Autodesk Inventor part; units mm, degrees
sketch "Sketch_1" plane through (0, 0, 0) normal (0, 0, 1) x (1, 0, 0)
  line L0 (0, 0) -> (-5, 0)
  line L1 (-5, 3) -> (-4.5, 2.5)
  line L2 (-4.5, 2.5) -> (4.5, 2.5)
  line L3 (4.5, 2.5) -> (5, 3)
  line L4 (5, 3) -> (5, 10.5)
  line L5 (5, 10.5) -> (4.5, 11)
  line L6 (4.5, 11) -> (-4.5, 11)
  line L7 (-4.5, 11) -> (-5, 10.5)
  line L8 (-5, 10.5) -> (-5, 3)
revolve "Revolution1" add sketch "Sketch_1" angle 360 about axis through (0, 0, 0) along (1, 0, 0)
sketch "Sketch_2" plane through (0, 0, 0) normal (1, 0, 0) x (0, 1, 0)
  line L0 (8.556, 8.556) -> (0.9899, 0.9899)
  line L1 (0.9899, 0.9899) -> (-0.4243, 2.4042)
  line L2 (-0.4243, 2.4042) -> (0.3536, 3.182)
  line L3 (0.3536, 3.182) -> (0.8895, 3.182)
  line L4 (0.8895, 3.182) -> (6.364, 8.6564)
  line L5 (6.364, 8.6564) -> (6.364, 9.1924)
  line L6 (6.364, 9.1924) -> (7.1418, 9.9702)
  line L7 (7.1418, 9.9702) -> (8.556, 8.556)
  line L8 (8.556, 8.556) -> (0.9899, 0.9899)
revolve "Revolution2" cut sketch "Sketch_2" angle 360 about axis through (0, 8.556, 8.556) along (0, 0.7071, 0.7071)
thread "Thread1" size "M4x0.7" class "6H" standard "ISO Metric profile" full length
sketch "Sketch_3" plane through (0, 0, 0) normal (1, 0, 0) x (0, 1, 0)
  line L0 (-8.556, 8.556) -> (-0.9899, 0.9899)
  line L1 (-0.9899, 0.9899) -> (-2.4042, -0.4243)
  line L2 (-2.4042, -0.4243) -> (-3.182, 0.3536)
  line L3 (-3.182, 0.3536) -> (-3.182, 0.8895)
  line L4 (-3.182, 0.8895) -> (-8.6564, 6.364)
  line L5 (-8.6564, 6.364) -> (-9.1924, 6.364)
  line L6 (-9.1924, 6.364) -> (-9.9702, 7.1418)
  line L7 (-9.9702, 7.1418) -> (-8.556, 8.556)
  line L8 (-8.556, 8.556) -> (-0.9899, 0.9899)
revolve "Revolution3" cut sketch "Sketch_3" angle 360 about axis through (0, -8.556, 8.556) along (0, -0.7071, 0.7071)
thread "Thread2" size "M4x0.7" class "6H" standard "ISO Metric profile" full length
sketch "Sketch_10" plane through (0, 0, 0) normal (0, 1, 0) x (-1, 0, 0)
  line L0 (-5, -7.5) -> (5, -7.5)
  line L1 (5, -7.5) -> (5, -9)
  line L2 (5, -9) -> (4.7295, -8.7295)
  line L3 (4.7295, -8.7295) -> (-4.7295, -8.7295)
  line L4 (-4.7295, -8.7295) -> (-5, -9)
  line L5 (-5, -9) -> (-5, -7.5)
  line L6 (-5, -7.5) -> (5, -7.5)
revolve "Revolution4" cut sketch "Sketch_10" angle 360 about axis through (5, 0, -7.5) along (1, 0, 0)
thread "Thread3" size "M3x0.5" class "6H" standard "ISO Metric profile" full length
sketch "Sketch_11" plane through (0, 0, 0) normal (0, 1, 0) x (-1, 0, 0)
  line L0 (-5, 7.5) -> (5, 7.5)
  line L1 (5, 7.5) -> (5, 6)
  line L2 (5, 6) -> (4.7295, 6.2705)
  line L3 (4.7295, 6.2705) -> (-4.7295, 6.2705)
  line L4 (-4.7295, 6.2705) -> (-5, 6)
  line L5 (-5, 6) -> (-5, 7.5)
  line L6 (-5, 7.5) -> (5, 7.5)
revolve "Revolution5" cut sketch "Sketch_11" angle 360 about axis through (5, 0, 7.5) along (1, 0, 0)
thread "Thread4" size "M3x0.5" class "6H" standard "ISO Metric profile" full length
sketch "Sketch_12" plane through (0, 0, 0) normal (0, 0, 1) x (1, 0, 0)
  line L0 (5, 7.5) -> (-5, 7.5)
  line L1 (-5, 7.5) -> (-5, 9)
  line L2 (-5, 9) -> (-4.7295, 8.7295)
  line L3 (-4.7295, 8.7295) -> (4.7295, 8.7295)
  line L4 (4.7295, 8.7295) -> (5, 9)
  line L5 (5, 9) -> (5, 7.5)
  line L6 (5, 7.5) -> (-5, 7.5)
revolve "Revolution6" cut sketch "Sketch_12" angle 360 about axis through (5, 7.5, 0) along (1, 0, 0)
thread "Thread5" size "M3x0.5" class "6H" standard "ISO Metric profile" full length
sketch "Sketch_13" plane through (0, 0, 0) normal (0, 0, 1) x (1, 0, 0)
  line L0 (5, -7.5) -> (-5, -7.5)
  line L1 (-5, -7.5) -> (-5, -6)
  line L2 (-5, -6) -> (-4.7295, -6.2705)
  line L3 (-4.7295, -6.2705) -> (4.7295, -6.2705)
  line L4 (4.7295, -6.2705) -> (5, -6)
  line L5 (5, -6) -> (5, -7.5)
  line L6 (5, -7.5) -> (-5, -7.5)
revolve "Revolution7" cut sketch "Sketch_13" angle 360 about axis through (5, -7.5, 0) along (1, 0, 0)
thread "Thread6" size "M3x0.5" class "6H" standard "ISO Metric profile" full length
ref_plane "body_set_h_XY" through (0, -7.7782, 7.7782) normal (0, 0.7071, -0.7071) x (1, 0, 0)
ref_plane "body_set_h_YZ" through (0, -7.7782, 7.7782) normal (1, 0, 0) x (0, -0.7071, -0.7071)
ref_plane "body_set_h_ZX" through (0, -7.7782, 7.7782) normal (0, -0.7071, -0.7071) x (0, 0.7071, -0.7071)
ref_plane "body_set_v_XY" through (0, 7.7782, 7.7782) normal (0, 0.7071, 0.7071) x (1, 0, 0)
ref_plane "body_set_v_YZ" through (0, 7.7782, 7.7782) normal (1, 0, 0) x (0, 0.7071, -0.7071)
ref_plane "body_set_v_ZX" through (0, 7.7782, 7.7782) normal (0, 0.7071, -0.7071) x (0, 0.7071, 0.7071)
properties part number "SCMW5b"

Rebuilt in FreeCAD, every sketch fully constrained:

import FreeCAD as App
import Part
import Sketcher

V = App.Vector

doc = App.newDocument("Part")
params = doc.addObject("Spreadsheet::Sheet", "Params")
for row, (alias, value) in enumerate([
    ("sketch1_width", "9 mm"),
    ("sketch1_height", "7.5 mm"),
    ("revolution_angle", "360 deg"),
    ("sketch2_length", "2 mm"),
    ("sketch2_length2", "10.7 mm"),
    ("sketch2_length3", "1.1 mm"),
    ("groove_angle", "360 deg"),
    ("sketch3_length", "2 mm"),
    ("sketch3_length2", "10.7 mm"),
    ("sketch3_length3", "1.1 mm"),
    ("groove2_angle", "360 deg"),
    ("sketch4_width", "10 mm"),
    ("sketch4_height", "1.5 mm"),
    ("groove3_angle", "360 deg"),
    ("sketch5_width", "10 mm"),
    ("sketch5_height", "1.5 mm"),
    ("groove4_angle", "360 deg"),
    ("sketch6_width", "10 mm"),
    ("sketch6_height", "1.5 mm"),
    ("groove5_angle", "360 deg"),
    ("sketch7_width", "10 mm"),
    ("sketch7_height", "1.5 mm"),
    ("groove6_angle", "360 deg"),
], start=1):
    params.set(f"A{row}", alias)
    params.set(f"B{row}", "=" + value)
    params.setAlias(f"B{row}", alias)

body = doc.addObject("PartDesign::Body", "Body")

# Sketch on XY plane
sketch1 = body.newObject("Sketcher::SketchObject", "Sketch")
sketch1.AttachmentSupport = (doc.getObject("XY_Plane"), [""])
sketch1.MapMode = "FlatFace"
sketch1.addGeometry([
    Part.LineSegment(V(-5, 10.5, 0), V(-5, 3, 0)),  # 0
    Part.LineSegment(V(-5, 3, 0), V(-4.5, 2.5, 0)),  # 1
    Part.LineSegment(V(-4.5, 2.5, 0), V(4.5, 2.5, 0)),  # 2
    Part.LineSegment(V(4.5, 2.5, 0), V(5, 3, 0)),  # 3
    Part.LineSegment(V(5, 3, 0), V(5, 10.5, 0)),  # 4
    Part.LineSegment(V(5, 10.5, 0), V(4.5, 11, 0)),  # 5
    Part.LineSegment(V(4.5, 11, 0), V(-4.5, 11, 0)),  # 6
    Part.LineSegment(V(-4.5, 11, 0), V(-5, 10.5, 0)),  # 7
], False)
sketch1.addConstraint([
    Sketcher.Constraint("Coincident", 0, 2, 1, 1),
    Sketcher.Constraint("Coincident", 1, 2, 2, 1),
    Sketcher.Constraint("Coincident", 2, 2, 3, 1),
    Sketcher.Constraint("Coincident", 3, 2, 4, 1),
    Sketcher.Constraint("Coincident", 4, 2, 5, 1),
    Sketcher.Constraint("Coincident", 5, 2, 6, 1),
    Sketcher.Constraint("Coincident", 6, 2, 7, 1),
    Sketcher.Constraint("Coincident", 7, 2, 0, 1),
    Sketcher.Constraint("Vertical", 0),
    Sketcher.Constraint("Horizontal", 2),
    Sketcher.Constraint("Vertical", 4),
    Sketcher.Constraint("Horizontal", 6),
    Sketcher.Constraint("Symmetric", 0, 2, 3, 2, -2),
    Sketcher.Constraint("Perpendicular", 1, 3),
    Sketcher.Constraint("Perpendicular", 3, 5),
    Sketcher.Constraint("Perpendicular", 5, 7),
    Sketcher.Constraint("Horizontal", 4, 2, 7, 2),
    Sketcher.Constraint("Vertical", 2, 2, 5, 2),
    Sketcher.Constraint("Vertical", 1, 2, 6, 2),
    Sketcher.Constraint("DistanceX", 2, 1, 2, 2, 9.0),
    Sketcher.Constraint("DistanceY", 0, 2, 0, 1, 7.5),
    Sketcher.Constraint("DistanceX", 0, 2, -1, 1, 5.0),
    Sketcher.Constraint("DistanceY", -1, 1, 0, 2, 3.0),
])
sketch1.setExpression("Constraints[19]", "Params.sketch1_width")
sketch1.setExpression("Constraints[20]", "Params.sketch1_height")
revolution = body.newObject("PartDesign::Revolution", "Revolution")
revolution.Profile = sketch1
revolution.ReferenceAxis = (sketch1, ["H_Axis"])
revolution.setExpression("Angle", "Params.revolution_angle")

# Sketch on YZ plane
sketch2 = body.newObject("Sketcher::SketchObject", "Sketch001")
sketch2.AttachmentSupport = (doc.getObject("YZ_Plane"), [""])
sketch2.MapMode = "FlatFace"
sketch2.addGeometry([
    Part.LineSegment(V(1, 1, 0), V(8.6, 8.6, 0)),  # 0
    Part.LineSegment(V(8.6, 8.6, 0), V(7.1, 10, 0)),  # 1
    Part.LineSegment(V(7.1, 10, 0), V(6.4, 9.2, 0)),  # 2
    Part.LineSegment(V(6.4, 9.2, 0), V(6.4, 8.7, 0)),  # 3
    Part.LineSegment(V(6.4, 8.7, 0), V(0.9, 3.2, 0)),  # 4
    Part.LineSegment(V(0.9, 3.2, 0), V(0.4, 3.2, 0)),  # 5
    Part.LineSegment(V(0.4, 3.2, 0), V(-0.4, 2.4, 0)),  # 6
    Part.LineSegment(V(-0.4, 2.4, 0), V(1, 1, 0)),  # 7
], False)
sketch2.addGeometry(Part.LineSegment(V(1, 1, 0), V(8.6, 8.6, 0)), True)  # axis
sketch2.addConstraint([
    Sketcher.Constraint("Coincident", 0, 2, 1, 1),
    Sketcher.Constraint("Coincident", 1, 2, 2, 1),
    Sketcher.Constraint("Coincident", 2, 2, 3, 1),
    Sketcher.Constraint("Coincident", 3, 2, 4, 1),
    Sketcher.Constraint("Coincident", 4, 2, 5, 1),
    Sketcher.Constraint("Coincident", 5, 2, 6, 1),
    Sketcher.Constraint("Coincident", 6, 2, 7, 1),
    Sketcher.Constraint("Coincident", 7, 2, 0, 1),
    Sketcher.Constraint("Vertical", 3),
    Sketcher.Constraint("Horizontal", 5),
    Sketcher.Constraint("Coincident", 8, 1, 7, 2),
    Sketcher.Constraint("Coincident", 8, 2, 0, 2),
    Sketcher.Constraint("Perpendicular", 0, 1),
    Sketcher.Constraint("Perpendicular", 1, 2),
    Sketcher.Constraint("Parallel", 2, 4),
    Sketcher.Constraint("Parallel", 4, 6),
    Sketcher.Constraint("Perpendicular", 6, 7),
    Sketcher.Constraint("Equal", 5, 3),
    Sketcher.Constraint("Equal", 2, 6),
    Sketcher.Constraint("Equal", 1, 7),
    Sketcher.Constraint("Distance", 1, 2.0),
    Sketcher.Constraint("Distance", 0, 10.7),
    Sketcher.Constraint("Distance", 2, 1.1),
    Sketcher.Constraint("DistanceX", 5, 2, 5, 1, 0.536),
    Sketcher.Constraint("DistanceX", -1, 1, 7, 2, 0.99),
    Sketcher.Constraint("DistanceY", -1, 1, 7, 2, 0.99),
])
sketch2.setExpression("Constraints[20]", "Params.sketch2_length")
sketch2.setExpression("Constraints[21]", "Params.sketch2_length2")
sketch2.setExpression("Constraints[22]", "Params.sketch2_length3")
groove = body.newObject("PartDesign::Groove", "Groove")
groove.Profile = sketch2
groove.ReferenceAxis = (sketch2, ["Axis0"])
groove.setExpression("Angle", "Params.groove_angle")

# Sketch on YZ plane
sketch3 = body.newObject("Sketcher::SketchObject", "Sketch002")
sketch3.AttachmentSupport = (doc.getObject("YZ_Plane"), [""])
sketch3.MapMode = "FlatFace"
sketch3.addGeometry([
    Part.LineSegment(V(-1, 1, 0), V(-8.6, 8.6, 0)),  # 0
    Part.LineSegment(V(-8.6, 8.6, 0), V(-10, 7.1, 0)),  # 1
    Part.LineSegment(V(-10, 7.1, 0), V(-9.2, 6.4, 0)),  # 2
    Part.LineSegment(V(-9.2, 6.4, 0), V(-8.7, 6.4, 0)),  # 3
    Part.LineSegment(V(-8.7, 6.4, 0), V(-3.2, 0.9, 0)),  # 4
    Part.LineSegment(V(-3.2, 0.9, 0), V(-3.2, 0.4, 0)),  # 5
    Part.LineSegment(V(-3.2, 0.4, 0), V(-2.4, -0.4, 0)),  # 6
    Part.LineSegment(V(-2.4, -0.4, 0), V(-1, 1, 0)),  # 7
], False)
sketch3.addGeometry(Part.LineSegment(V(-1, 1, 0), V(-8.6, 8.6, 0)), True)  # axis
sketch3.addConstraint([
    Sketcher.Constraint("Coincident", 0, 2, 1, 1),
    Sketcher.Constraint("Coincident", 1, 2, 2, 1),
    Sketcher.Constraint("Coincident", 2, 2, 3, 1),
    Sketcher.Constraint("Coincident", 3, 2, 4, 1),
    Sketcher.Constraint("Coincident", 4, 2, 5, 1),
    Sketcher.Constraint("Coincident", 5, 2, 6, 1),
    Sketcher.Constraint("Coincident", 6, 2, 7, 1),
    Sketcher.Constraint("Coincident", 7, 2, 0, 1),
    Sketcher.Constraint("Horizontal", 3),
    Sketcher.Constraint("Vertical", 5),
    Sketcher.Constraint("Coincident", 8, 1, 7, 2),
    Sketcher.Constraint("Coincident", 8, 2, 0, 2),
    Sketcher.Constraint("Perpendicular", 0, 1),
    Sketcher.Constraint("Perpendicular", 1, 2),
    Sketcher.Constraint("Parallel", 2, 4),
    Sketcher.Constraint("Parallel", 4, 6),
    Sketcher.Constraint("Perpendicular", 6, 7),
    Sketcher.Constraint("Equal", 3, 5),
    Sketcher.Constraint("Equal", 2, 6),
    Sketcher.Constraint("Equal", 1, 7),
    Sketcher.Constraint("Distance", 1, 2.0),
    Sketcher.Constraint("Distance", 0, 10.7),
    Sketcher.Constraint("Distance", 2, 1.1),
    Sketcher.Constraint("DistanceX", 3, 1, 3, 2, 0.536),
    Sketcher.Constraint("DistanceX", 7, 2, -1, 1, 0.99),
    Sketcher.Constraint("DistanceY", -1, 1, 7, 2, 0.99),
])
sketch3.setExpression("Constraints[20]", "Params.sketch3_length")
sketch3.setExpression("Constraints[21]", "Params.sketch3_length2")
sketch3.setExpression("Constraints[22]", "Params.sketch3_length3")
groove2 = body.newObject("PartDesign::Groove", "Groove001")
groove2.Profile = sketch3
groove2.ReferenceAxis = (sketch3, ["Axis0"])
groove2.setExpression("Angle", "Params.groove2_angle")

# Sketch on XZ plane
sketch4 = body.newObject("Sketcher::SketchObject", "Sketch003")
sketch4.AttachmentSupport = (doc.getObject("XZ_Plane"), [""])
sketch4.MapMode = "FlatFace"
sketch4.addGeometry([
    Part.LineSegment(V(-5, -7.5, 0), V(5, -7.5, 0)),  # 0
    Part.LineSegment(V(5, -7.5, 0), V(5, -9, 0)),  # 1
    Part.LineSegment(V(5, -9, 0), V(4.73, -8.73, 0)),  # 2
    Part.LineSegment(V(4.73, -8.73, 0), V(-4.73, -8.73, 0)),  # 3
    Part.LineSegment(V(-4.73, -8.73, 0), V(-5, -9, 0)),  # 4
    Part.LineSegment(V(-5, -9, 0), V(-5, -7.5, 0)),  # 5
], False)
sketch4.addGeometry(Part.LineSegment(V(-5, -7.5, 0), V(5, -7.5, 0)), True)  # axis
sketch4.addConstraint([
    Sketcher.Constraint("Coincident", 0, 2, 1, 1),
    Sketcher.Constraint("Coincident", 1, 2, 2, 1),
    Sketcher.Constraint("Coincident", 2, 2, 3, 1),
    Sketcher.Constraint("Coincident", 3, 2, 4, 1),
    Sketcher.Constraint("Coincident", 4, 2, 5, 1),
    Sketcher.Constraint("Coincident", 5, 2, 0, 1),
    Sketcher.Constraint("Horizontal", 0),
    Sketcher.Constraint("Vertical", 1),
    Sketcher.Constraint("Horizontal", 3),
    Sketcher.Constraint("Vertical", 5),
    Sketcher.Constraint("Horizontal", 6),
    Sketcher.Constraint("Coincident", 6, 1, 5, 2),
    Sketcher.Constraint("Symmetric", 1, 2, 4, 2, -2),
    Sketcher.Constraint("Perpendicular", 2, 4),
    Sketcher.Constraint("Vertical", 1, 2, 6, 2),
    Sketcher.Constraint("Equal", 2, 4),
    Sketcher.Constraint("DistanceX", 0, 1, 0, 2, 10.0),
    Sketcher.Constraint("DistanceY", 1, 2, 1, 1, 1.5),
    Sketcher.Constraint("DistanceY", 1, 2, -1, 1, 9.0),
    Sketcher.Constraint("DistanceX", 3, 2, 3, 1, 9.459),
])
sketch4.setExpression("Constraints[16]", "Params.sketch4_width")
sketch4.setExpression("Constraints[17]", "Params.sketch4_height")
groove3 = body.newObject("PartDesign::Groove", "Groove002")
groove3.Profile = sketch4
groove3.ReferenceAxis = (sketch4, ["Axis0"])
groove3.setExpression("Angle", "Params.groove3_angle")

# Sketch on XZ plane
sketch5 = body.newObject("Sketcher::SketchObject", "Sketch004")
sketch5.AttachmentSupport = (doc.getObject("XZ_Plane"), [""])
sketch5.MapMode = "FlatFace"
sketch5.addGeometry([
    Part.LineSegment(V(-5, 7.5, 0), V(5, 7.5, 0)),  # 0
    Part.LineSegment(V(5, 7.5, 0), V(5, 6, 0)),  # 1
    Part.LineSegment(V(5, 6, 0), V(4.73, 6.27, 0)),  # 2
    Part.LineSegment(V(4.73, 6.27, 0), V(-4.73, 6.27, 0)),  # 3
    Part.LineSegment(V(-4.73, 6.27, 0), V(-5, 6, 0)),  # 4
    Part.LineSegment(V(-5, 6, 0), V(-5, 7.5, 0)),  # 5
], False)
sketch5.addGeometry(Part.LineSegment(V(-5, 7.5, 0), V(5, 7.5, 0)), True)  # axis
sketch5.addConstraint([
    Sketcher.Constraint("Coincident", 0, 2, 1, 1),
    Sketcher.Constraint("Coincident", 1, 2, 2, 1),
    Sketcher.Constraint("Coincident", 2, 2, 3, 1),
    Sketcher.Constraint("Coincident", 3, 2, 4, 1),
    Sketcher.Constraint("Coincident", 4, 2, 5, 1),
    Sketcher.Constraint("Coincident", 5, 2, 0, 1),
    Sketcher.Constraint("Horizontal", 0),
    Sketcher.Constraint("Vertical", 1),
    Sketcher.Constraint("Horizontal", 3),
    Sketcher.Constraint("Vertical", 5),
    Sketcher.Constraint("Horizontal", 6),
    Sketcher.Constraint("Coincident", 6, 1, 5, 2),
    Sketcher.Constraint("Symmetric", 1, 2, 4, 2, -2),
    Sketcher.Constraint("Perpendicular", 2, 4),
    Sketcher.Constraint("Vertical", 1, 2, 6, 2),
    Sketcher.Constraint("Equal", 2, 4),
    Sketcher.Constraint("DistanceX", 0, 1, 0, 2, 10.0),
    Sketcher.Constraint("DistanceY", 1, 2, 1, 1, 1.5),
    Sketcher.Constraint("DistanceY", -1, 1, 1, 2, 6.0),
    Sketcher.Constraint("DistanceX", 3, 2, 3, 1, 9.459),
])
sketch5.setExpression("Constraints[16]", "Params.sketch5_width")
sketch5.setExpression("Constraints[17]", "Params.sketch5_height")
groove4 = body.newObject("PartDesign::Groove", "Groove003")
groove4.Profile = sketch5
groove4.ReferenceAxis = (sketch5, ["Axis0"])
groove4.setExpression("Angle", "Params.groove4_angle")

# Sketch on XY plane
sketch6 = body.newObject("Sketcher::SketchObject", "Sketch005")
sketch6.AttachmentSupport = (doc.getObject("XY_Plane"), [""])
sketch6.MapMode = "FlatFace"
sketch6.addGeometry([
    Part.LineSegment(V(-5, 7.5, 0), V(5, 7.5, 0)),  # 0
    Part.LineSegment(V(5, 7.5, 0), V(5, 9, 0)),  # 1
    Part.LineSegment(V(5, 9, 0), V(4.73, 8.73, 0)),  # 2
    Part.LineSegment(V(4.73, 8.73, 0), V(-4.73, 8.73, 0)),  # 3
    Part.LineSegment(V(-4.73, 8.73, 0), V(-5, 9, 0)),  # 4
    Part.LineSegment(V(-5, 9, 0), V(-5, 7.5, 0)),  # 5
], False)
sketch6.addGeometry(Part.LineSegment(V(-5, 7.5, 0), V(5, 7.5, 0)), True)  # axis
sketch6.addConstraint([
    Sketcher.Constraint("Coincident", 0, 2, 1, 1),
    Sketcher.Constraint("Coincident", 1, 2, 2, 1),
    Sketcher.Constraint("Coincident", 2, 2, 3, 1),
    Sketcher.Constraint("Coincident", 3, 2, 4, 1),
    Sketcher.Constraint("Coincident", 4, 2, 5, 1),
    Sketcher.Constraint("Coincident", 5, 2, 0, 1),
    Sketcher.Constraint("Horizontal", 0),
    Sketcher.Constraint("Vertical", 1),
    Sketcher.Constraint("Horizontal", 3),
    Sketcher.Constraint("Vertical", 5),
    Sketcher.Constraint("Horizontal", 6),
    Sketcher.Constraint("Coincident", 6, 1, 5, 2),
    Sketcher.Constraint("Symmetric", 1, 2, 4, 2, -2),
    Sketcher.Constraint("Perpendicular", 2, 4),
    Sketcher.Constraint("Vertical", 1, 2, 6, 2),
    Sketcher.Constraint("Equal", 2, 4),
    Sketcher.Constraint("DistanceX", 0, 1, 0, 2, 10.0),
    Sketcher.Constraint("DistanceY", 1, 1, 1, 2, 1.5),
    Sketcher.Constraint("DistanceY", -1, 1, 1, 2, 9.0),
    Sketcher.Constraint("DistanceX", 3, 2, 3, 1, 9.459),
])
sketch6.setExpression("Constraints[16]", "Params.sketch6_width")
sketch6.setExpression("Constraints[17]", "Params.sketch6_height")
groove5 = body.newObject("PartDesign::Groove", "Groove004")
groove5.Profile = sketch6
groove5.ReferenceAxis = (sketch6, ["Axis0"])
groove5.setExpression("Angle", "Params.groove5_angle")

# Sketch on XY plane
sketch7 = body.newObject("Sketcher::SketchObject", "Sketch006")
sketch7.AttachmentSupport = (doc.getObject("XY_Plane"), [""])
sketch7.MapMode = "FlatFace"
sketch7.addGeometry([
    Part.LineSegment(V(-5, -7.5, 0), V(5, -7.5, 0)),  # 0
    Part.LineSegment(V(5, -7.5, 0), V(5, -6, 0)),  # 1
    Part.LineSegment(V(5, -6, 0), V(4.73, -6.27, 0)),  # 2
    Part.LineSegment(V(4.73, -6.27, 0), V(-4.73, -6.27, 0)),  # 3
    Part.LineSegment(V(-4.73, -6.27, 0), V(-5, -6, 0)),  # 4
    Part.LineSegment(V(-5, -6, 0), V(-5, -7.5, 0)),  # 5
], False)
sketch7.addGeometry(Part.LineSegment(V(-5, -7.5, 0), V(5, -7.5, 0)), True)  # axis
sketch7.addConstraint([
    Sketcher.Constraint("Coincident", 0, 2, 1, 1),
    Sketcher.Constraint("Coincident", 1, 2, 2, 1),
    Sketcher.Constraint("Coincident", 2, 2, 3, 1),
    Sketcher.Constraint("Coincident", 3, 2, 4, 1),
    Sketcher.Constraint("Coincident", 4, 2, 5, 1),
    Sketcher.Constraint("Coincident", 5, 2, 0, 1),
    Sketcher.Constraint("Horizontal", 0),
    Sketcher.Constraint("Vertical", 1),
    Sketcher.Constraint("Horizontal", 3),
    Sketcher.Constraint("Vertical", 5),
    Sketcher.Constraint("Horizontal", 6),
    Sketcher.Constraint("Coincident", 6, 1, 5, 2),
    Sketcher.Constraint("Symmetric", 1, 2, 4, 2, -2),
    Sketcher.Constraint("Perpendicular", 2, 4),
    Sketcher.Constraint("Vertical", 1, 2, 6, 2),
    Sketcher.Constraint("Equal", 2, 4),
    Sketcher.Constraint("DistanceX", 0, 1, 0, 2, 10.0),
    Sketcher.Constraint("DistanceY", 1, 1, 1, 2, 1.5),
    Sketcher.Constraint("DistanceY", 1, 2, -1, 1, 6.0),
    Sketcher.Constraint("DistanceX", 3, 2, 3, 1, 9.459),
])
sketch7.setExpression("Constraints[16]", "Params.sketch7_width")
sketch7.setExpression("Constraints[17]", "Params.sketch7_height")
groove6 = body.newObject("PartDesign::Groove", "Groove005")
groove6.Profile = sketch7
groove6.ReferenceAxis = (sketch7, ["Axis0"])
groove6.setExpression("Angle", "Params.groove6_angle")

doc.recompute()
